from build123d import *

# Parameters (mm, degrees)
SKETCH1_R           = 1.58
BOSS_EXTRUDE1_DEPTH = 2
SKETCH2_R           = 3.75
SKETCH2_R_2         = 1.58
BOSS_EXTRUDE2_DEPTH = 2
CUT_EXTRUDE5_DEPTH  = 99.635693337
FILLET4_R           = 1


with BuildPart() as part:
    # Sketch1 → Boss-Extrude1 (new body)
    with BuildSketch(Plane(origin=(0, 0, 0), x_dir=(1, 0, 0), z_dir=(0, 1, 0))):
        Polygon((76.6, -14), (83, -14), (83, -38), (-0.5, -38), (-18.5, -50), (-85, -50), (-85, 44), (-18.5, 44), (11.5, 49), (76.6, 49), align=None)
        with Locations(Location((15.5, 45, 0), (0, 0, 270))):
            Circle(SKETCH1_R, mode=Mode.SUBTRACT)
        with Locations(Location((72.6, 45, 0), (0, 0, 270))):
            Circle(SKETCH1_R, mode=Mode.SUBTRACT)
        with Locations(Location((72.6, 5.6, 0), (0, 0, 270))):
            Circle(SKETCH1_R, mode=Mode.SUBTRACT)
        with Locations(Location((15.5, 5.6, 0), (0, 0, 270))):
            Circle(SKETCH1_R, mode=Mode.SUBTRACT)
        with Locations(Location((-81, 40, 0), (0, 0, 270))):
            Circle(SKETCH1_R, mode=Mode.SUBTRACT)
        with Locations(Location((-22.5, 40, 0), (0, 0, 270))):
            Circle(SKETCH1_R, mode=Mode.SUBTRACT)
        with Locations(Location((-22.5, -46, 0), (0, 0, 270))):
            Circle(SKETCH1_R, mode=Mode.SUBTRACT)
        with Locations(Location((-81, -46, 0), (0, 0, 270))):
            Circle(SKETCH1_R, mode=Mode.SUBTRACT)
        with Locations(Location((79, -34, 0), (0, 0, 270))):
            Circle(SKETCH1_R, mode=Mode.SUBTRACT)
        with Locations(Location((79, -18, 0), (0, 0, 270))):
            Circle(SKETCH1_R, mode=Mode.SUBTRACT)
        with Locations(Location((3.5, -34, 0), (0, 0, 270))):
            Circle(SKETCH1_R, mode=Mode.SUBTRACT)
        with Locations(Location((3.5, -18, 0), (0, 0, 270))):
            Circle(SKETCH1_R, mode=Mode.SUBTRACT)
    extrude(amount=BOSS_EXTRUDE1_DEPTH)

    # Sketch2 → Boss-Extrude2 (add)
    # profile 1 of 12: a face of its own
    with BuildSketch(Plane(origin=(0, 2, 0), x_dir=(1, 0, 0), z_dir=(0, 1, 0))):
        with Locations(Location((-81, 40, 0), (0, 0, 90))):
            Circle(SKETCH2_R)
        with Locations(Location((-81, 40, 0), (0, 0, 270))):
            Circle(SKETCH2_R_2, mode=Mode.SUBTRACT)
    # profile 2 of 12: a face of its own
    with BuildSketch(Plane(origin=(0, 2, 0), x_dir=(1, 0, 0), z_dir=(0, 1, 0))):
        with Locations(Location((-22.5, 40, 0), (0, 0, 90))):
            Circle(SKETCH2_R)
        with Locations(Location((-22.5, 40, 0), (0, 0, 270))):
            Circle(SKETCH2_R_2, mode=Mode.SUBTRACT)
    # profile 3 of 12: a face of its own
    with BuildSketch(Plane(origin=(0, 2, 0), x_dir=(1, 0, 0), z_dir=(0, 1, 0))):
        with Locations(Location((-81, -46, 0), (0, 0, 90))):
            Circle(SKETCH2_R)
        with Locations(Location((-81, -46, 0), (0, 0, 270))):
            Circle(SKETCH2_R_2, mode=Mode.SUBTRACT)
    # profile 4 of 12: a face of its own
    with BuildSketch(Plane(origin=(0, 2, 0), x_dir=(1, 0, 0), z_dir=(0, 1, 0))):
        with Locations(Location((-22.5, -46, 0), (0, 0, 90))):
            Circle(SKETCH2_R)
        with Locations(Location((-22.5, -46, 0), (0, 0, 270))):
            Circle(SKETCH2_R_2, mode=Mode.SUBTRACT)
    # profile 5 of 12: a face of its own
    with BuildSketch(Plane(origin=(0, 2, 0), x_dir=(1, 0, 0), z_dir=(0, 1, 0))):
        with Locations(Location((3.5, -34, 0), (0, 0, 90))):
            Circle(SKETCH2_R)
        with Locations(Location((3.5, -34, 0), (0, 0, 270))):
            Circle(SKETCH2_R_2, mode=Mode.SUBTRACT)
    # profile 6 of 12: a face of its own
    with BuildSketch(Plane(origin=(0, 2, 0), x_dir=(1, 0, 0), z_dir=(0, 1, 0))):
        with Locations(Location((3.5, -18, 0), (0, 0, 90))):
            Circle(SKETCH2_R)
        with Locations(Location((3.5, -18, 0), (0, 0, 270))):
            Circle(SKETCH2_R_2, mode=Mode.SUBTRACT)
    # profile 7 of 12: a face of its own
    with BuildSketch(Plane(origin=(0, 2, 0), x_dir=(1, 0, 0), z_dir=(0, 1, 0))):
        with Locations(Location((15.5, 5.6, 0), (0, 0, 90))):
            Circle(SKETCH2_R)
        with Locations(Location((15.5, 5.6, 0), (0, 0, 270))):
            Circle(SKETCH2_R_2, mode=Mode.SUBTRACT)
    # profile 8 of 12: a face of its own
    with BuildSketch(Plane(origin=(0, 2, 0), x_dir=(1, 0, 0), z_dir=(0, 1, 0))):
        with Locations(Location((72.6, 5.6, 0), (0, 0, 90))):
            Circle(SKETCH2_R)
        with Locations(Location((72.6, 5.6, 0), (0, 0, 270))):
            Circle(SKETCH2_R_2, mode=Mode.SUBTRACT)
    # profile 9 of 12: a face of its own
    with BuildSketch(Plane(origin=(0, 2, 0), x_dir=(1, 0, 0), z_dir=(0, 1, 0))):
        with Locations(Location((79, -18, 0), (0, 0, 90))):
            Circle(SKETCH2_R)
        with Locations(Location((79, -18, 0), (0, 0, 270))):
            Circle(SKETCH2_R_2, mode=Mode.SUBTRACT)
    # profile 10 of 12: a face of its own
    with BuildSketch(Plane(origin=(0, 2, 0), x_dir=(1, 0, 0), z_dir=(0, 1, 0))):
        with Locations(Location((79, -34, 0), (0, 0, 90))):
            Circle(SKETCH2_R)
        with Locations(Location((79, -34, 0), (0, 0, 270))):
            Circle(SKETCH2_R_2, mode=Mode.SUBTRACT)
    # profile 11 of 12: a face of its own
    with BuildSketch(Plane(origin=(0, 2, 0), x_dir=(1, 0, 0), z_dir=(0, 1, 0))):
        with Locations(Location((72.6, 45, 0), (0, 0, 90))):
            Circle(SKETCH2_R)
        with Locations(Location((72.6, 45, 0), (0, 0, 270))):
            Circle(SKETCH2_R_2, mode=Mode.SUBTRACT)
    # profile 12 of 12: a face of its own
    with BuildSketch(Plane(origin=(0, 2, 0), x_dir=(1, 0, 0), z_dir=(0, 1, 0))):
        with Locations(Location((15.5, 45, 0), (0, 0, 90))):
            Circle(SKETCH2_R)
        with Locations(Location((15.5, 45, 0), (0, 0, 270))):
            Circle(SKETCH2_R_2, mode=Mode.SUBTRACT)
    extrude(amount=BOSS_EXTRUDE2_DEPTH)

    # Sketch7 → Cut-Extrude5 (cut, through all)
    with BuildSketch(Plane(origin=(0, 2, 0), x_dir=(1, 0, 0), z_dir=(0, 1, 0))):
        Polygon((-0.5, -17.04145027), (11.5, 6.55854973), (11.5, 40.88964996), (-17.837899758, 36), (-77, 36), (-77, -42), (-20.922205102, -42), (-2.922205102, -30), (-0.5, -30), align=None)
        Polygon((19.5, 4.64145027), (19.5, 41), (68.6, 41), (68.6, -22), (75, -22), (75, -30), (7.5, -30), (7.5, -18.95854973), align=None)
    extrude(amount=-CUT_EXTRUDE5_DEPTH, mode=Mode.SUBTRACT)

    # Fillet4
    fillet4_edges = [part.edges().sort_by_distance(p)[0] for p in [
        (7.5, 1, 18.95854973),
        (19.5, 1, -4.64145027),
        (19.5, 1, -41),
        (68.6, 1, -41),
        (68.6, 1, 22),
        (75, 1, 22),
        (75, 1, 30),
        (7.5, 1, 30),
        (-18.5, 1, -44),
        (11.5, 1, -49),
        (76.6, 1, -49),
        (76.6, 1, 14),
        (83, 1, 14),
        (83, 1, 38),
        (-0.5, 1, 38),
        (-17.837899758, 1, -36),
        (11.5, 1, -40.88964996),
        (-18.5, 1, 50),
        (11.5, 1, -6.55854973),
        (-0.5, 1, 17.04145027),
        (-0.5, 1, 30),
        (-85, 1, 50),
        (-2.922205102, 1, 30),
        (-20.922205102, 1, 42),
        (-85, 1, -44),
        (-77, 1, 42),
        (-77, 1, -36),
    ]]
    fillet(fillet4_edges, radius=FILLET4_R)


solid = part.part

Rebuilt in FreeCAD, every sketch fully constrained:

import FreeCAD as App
import Part
import Sketcher

V = App.Vector


def edges_at(feature, points):
    """Names of the edges that pass closest to the given points."""
    edges = feature.Shape.Edges
    near = lambda p: min(range(len(edges)), key=lambda i: edges[i].distToShape(Part.Vertex(*p))[0])
    return sorted({f"Edge{near(p) + 1}" for p in points})


def add_polygon(sketch, points):
    """Adds a closed chain of lines whose ends are joined by coincident constraints."""
    first, n = sketch.GeometryCount, len(points)
    for a, b in zip(points, points[1:] + points[:1]):
        sketch.addGeometry(Part.LineSegment(App.Vector(*a, 0), App.Vector(*b, 0)), False)
    for i in range(n):
        sketch.addConstraint(Sketcher.Constraint("Coincident", first + i, 2, first + (i + 1) % n, 1))

doc = App.newDocument("Part")
body = doc.addObject("PartDesign::Body", "Body")

sketch1 = doc.addObject("Sketcher::SketchObject", "Sketch")
body.addObject(sketch1)
sketch1.AttachmentSupport = (doc.XZ_Plane, [""])
sketch1.MapMode = "FlatFace"
add_polygon(sketch1, [(83, 14), (76.6, 14), (76.6, -49), (11.5, -49), (-18.5, -44), (-85, -44), (-85, 50), (-18.5, 50), (-0.5, 38), (83, 38)])
sketch1.addGeometry(Part.Circle(V(79, 34, 0), V(0, 0, 1), 1.6), False)
sketch1.addGeometry(Part.Circle(V(3.5, 34, 0), V(0, 0, 1), 1.6), False)
sketch1.addGeometry(Part.Circle(V(79, 18, 0), V(0, 0, 1), 1.6), False)
sketch1.addGeometry(Part.Circle(V(3.5, 18, 0), V(0, 0, 1), 1.6), False)
sketch1.addGeometry(Part.Circle(V(-22.5, 46, 0), V(0, 0, 1), 1.6), False)
sketch1.addGeometry(Part.Circle(V(-81, 46, 0), V(0, 0, 1), 1.6), False)
sketch1.addGeometry(Part.Circle(V(72.6, -5.6, 0), V(0, 0, 1), 1.6), False)
sketch1.addGeometry(Part.Circle(V(15.5, -5.6, 0), V(0, 0, 1), 1.6), False)
sketch1.addGeometry(Part.Circle(V(72.6, -45, 0), V(0, 0, 1), 1.6), False)
sketch1.addGeometry(Part.Circle(V(15.5, -45, 0), V(0, 0, 1), 1.6), False)
sketch1.addGeometry(Part.Circle(V(-22.5, -40, 0), V(0, 0, 1), 1.6), False)
sketch1.addGeometry(Part.Circle(V(-81, -40, 0), V(0, 0, 1), 1.6), False)
sketch1.addConstraint(Sketcher.Constraint("Horizontal", 0))
sketch1.addConstraint(Sketcher.Constraint("Vertical", 1))
sketch1.addConstraint(Sketcher.Constraint("Horizontal", 2))
sketch1.addConstraint(Sketcher.Constraint("Horizontal", 4))
sketch1.addConstraint(Sketcher.Constraint("Vertical", 5))
sketch1.addConstraint(Sketcher.Constraint("Horizontal", 6))
sketch1.addConstraint(Sketcher.Constraint("Horizontal", 8))
sketch1.addConstraint(Sketcher.Constraint("Vertical", 9))
sketch1.addConstraint(Sketcher.Constraint("Equal", 10, 11))
sketch1.addConstraint(Sketcher.Constraint("Equal", 11, 12))
sketch1.addConstraint(Sketcher.Constraint("Equal", 12, 13))
sketch1.addConstraint(Sketcher.Constraint("Equal", 13, 14))
sketch1.addConstraint(Sketcher.Constraint("Equal", 14, 15))
sketch1.addConstraint(Sketcher.Constraint("Equal", 15, 16))
sketch1.addConstraint(Sketcher.Constraint("Equal", 16, 17))
sketch1.addConstraint(Sketcher.Constraint("Equal", 17, 18))
sketch1.addConstraint(Sketcher.Constraint("Equal", 18, 19))
sketch1.addConstraint(Sketcher.Constraint("Equal", 19, 20))
sketch1.addConstraint(Sketcher.Constraint("Equal", 20, 21))
sketch1.addConstraint(Sketcher.Constraint("Horizontal", 10, 3, 11, 3))
sketch1.addConstraint(Sketcher.Constraint("Horizontal", 12, 3, 13, 3))
sketch1.addConstraint(Sketcher.Constraint("Horizontal", 14, 3, 15, 3))
sketch1.addConstraint(Sketcher.Constraint("Horizontal", 16, 3, 17, 3))
sketch1.addConstraint(Sketcher.Constraint("Horizontal", 18, 3, 19, 3))
sketch1.addConstraint(Sketcher.Constraint("Horizontal", 20, 3, 21, 3))
sketch1.addConstraint(Sketcher.Constraint("Vertical", 10, 3, 12, 3))
sketch1.addConstraint(Sketcher.Constraint("Vertical", 11, 3, 13, 3))
sketch1.addConstraint(Sketcher.Constraint("Vertical", 16, 3, 18, 3))
sketch1.addConstraint(Sketcher.Constraint("Vertical", 17, 3, 19, 3))
sketch1.addConstraint(Sketcher.Constraint("Vertical", 14, 3, 20, 3))
sketch1.addConstraint(Sketcher.Constraint("Vertical", 15, 3, 21, 3))
sketch1.addConstraint(Sketcher.Constraint("Vertical", 3, 2, 6, 2))
sketch1.addConstraint(Sketcher.Constraint("Diameter", 10, 3.16))
sketch1.addConstraint(Sketcher.Constraint("DistanceY", 1, 2, 1, 1, 63.0))
sketch1.addConstraint(Sketcher.Constraint("DistanceY", 5, 1, 5, 2, 94.0))
sketch1.addConstraint(Sketcher.Constraint("DistanceY", 9, 2, 9, 1, 24.0))
sketch1.addConstraint(Sketcher.Constraint("DistanceX", 0, 2, 0, 1, 6.4))
sketch1.addConstraint(Sketcher.Constraint("DistanceX", 2, 2, 2, 1, 65.1))
sketch1.addConstraint(Sketcher.Constraint("DistanceX", 4, 2, 4, 1, 66.5))
sketch1.addConstraint(Sketcher.Constraint("DistanceX", 8, 1, 8, 2, 83.5))
sketch1.addConstraint(Sketcher.Constraint("DistanceX", -1, 1, 10, 3, 79.0))
sketch1.addConstraint(Sketcher.Constraint("DistanceY", -1, 1, 10, 3, 34.0))
sketch1.addConstraint(Sketcher.Constraint("DistanceY", -1, 1, 12, 3, 18.0))
sketch1.addConstraint(Sketcher.Constraint("DistanceY", -1, 1, 14, 3, 46.0))
sketch1.addConstraint(Sketcher.Constraint("DistanceX", 15, 3, -1, 1, 81.0))
sketch1.addConstraint(Sketcher.Constraint("DistanceY", 18, 3, -1, 1, 45.0))
sketch1.addConstraint(Sketcher.Constraint("DistanceY", 20, 3, -1, 1, 40.0))
sketch1.addConstraint(Sketcher.Constraint("DistanceY", -1, 1, 0, 2, 14.0))
sketch1.addConstraint(Sketcher.Constraint("DistanceY", 3, 2, -1, 1, 44.0))
sketch1.addConstraint(Sketcher.Constraint("DistanceX", 4, 2, -1, 1, 85.0))
sketch1.addConstraint(Sketcher.Constraint("DistanceX", -1, 1, 8, 2, 83.0))
sketch1.addConstraint(Sketcher.Constraint("DistanceX", 14, 3, 11, 3, 26.0))
sketch1.addConstraint(Sketcher.Constraint("DistanceX", 13, 3, 17, 3, 12.0))
sketch1.addConstraint(Sketcher.Constraint("DistanceX", 16, 3, 0, 2, 4.0))
sketch1.addConstraint(Sketcher.Constraint("DistanceX", 2, 2, 19, 3, 4.0))
sketch1.addConstraint(Sketcher.Constraint("DistanceY", 16, 3, -1, 1, 5.6))
pad1 = doc.addObject("PartDesign::Pad", "Pad")
body.addObject(pad1)
pad1.Profile = sketch1
pad1.Length = 2
pad1.Reversed = True

sketch2 = doc.addObject("Sketcher::SketchObject", "Sketch001")
body.addObject(sketch2)
sketch2.AttachmentSupport = (doc.XZ_Plane, [""])
sketch2.MapMode = "FlatFace"
sketch2.AttachmentOffset = App.Placement(V(0, 0, -2), App.Rotation())
sketch2.addGeometry(Part.Circle(V(-81, -40, 0), V(0, 0, 1), 3.8), False)
sketch2.addGeometry(Part.Circle(V(-81, -40, 0), V(0, 0, 1), 1.6), False)
sketch2.addGeometry(Part.Circle(V(-22.5, -40, 0), V(0, 0, 1), 3.8), False)
sketch2.addGeometry(Part.Circle(V(-22.5, -40, 0), V(0, 0, 1), 1.6), False)
sketch2.addGeometry(Part.Circle(V(-81, 46, 0), V(0, 0, 1), 3.8), False)
sketch2.addGeometry(Part.Circle(V(-81, 46, 0), V(0, 0, 1), 1.6), False)
sketch2.addGeometry(Part.Circle(V(-22.5, 46, 0), V(0, 0, 1), 3.8), False)
sketch2.addGeometry(Part.Circle(V(-22.5, 46, 0), V(0, 0, 1), 1.6), False)
sketch2.addGeometry(Part.Circle(V(3.5, 34, 0), V(0, 0, 1), 3.8), False)
sketch2.addGeometry(Part.Circle(V(3.5, 34, 0), V(0, 0, 1), 1.6), False)
sketch2.addGeometry(Part.Circle(V(3.5, 18, 0), V(0, 0, 1), 3.8), False)
sketch2.addGeometry(Part.Circle(V(3.5, 18, 0), V(0, 0, 1), 1.6), False)
sketch2.addGeometry(Part.Circle(V(15.5, -5.6, 0), V(0, 0, 1), 3.8), False)
sketch2.addGeometry(Part.Circle(V(15.5, -5.6, 0), V(0, 0, 1), 1.6), False)
sketch2.addGeometry(Part.Circle(V(72.6, -5.6, 0), V(0, 0, 1), 3.8), False)
sketch2.addGeometry(Part.Circle(V(72.6, -5.6, 0), V(0, 0, 1), 1.6), False)
sketch2.addGeometry(Part.Circle(V(79, 18, 0), V(0, 0, 1), 3.8), False)
sketch2.addGeometry(Part.Circle(V(79, 18, 0), V(0, 0, 1), 1.6), False)
sketch2.addGeometry(Part.Circle(V(79, 34, 0), V(0, 0, 1), 3.8), False)
sketch2.addGeometry(Part.Circle(V(79, 34, 0), V(0, 0, 1), 1.6), False)
sketch2.addGeometry(Part.Circle(V(72.6, -45, 0), V(0, 0, 1), 3.8), False)
sketch2.addGeometry(Part.Circle(V(72.6, -45, 0), V(0, 0, 1), 1.6), False)
sketch2.addGeometry(Part.Circle(V(15.5, -45, 0), V(0, 0, 1), 3.8), False)
sketch2.addGeometry(Part.Circle(V(15.5, -45, 0), V(0, 0, 1), 1.6), False)
sketch2.addConstraint(Sketcher.Constraint("Coincident", 1, 3, 0, 3))
sketch2.addConstraint(Sketcher.Constraint("Coincident", 3, 3, 2, 3))
sketch2.addConstraint(Sketcher.Constraint("Coincident", 5, 3, 4, 3))
sketch2.addConstraint(Sketcher.Constraint("Coincident", 7, 3, 6, 3))
sketch2.addConstraint(Sketcher.Constraint("Coincident", 9, 3, 8, 3))
sketch2.addConstraint(Sketcher.Constraint("Coincident", 11, 3, 10, 3))
sketch2.addConstraint(Sketcher.Constraint("Coincident", 13, 3, 12, 3))
sketch2.addConstraint(Sketcher.Constraint("Coincident", 15, 3, 14, 3))
sketch2.addConstraint(Sketcher.Constraint("Coincident", 17, 3, 16, 3))
sketch2.addConstraint(Sketcher.Constraint("Coincident", 19, 3, 18, 3))
sketch2.addConstraint(Sketcher.Constraint("Coincident", 21, 3, 20, 3))
sketch2.addConstraint(Sketcher.Constraint("Coincident", 23, 3, 22, 3))
sketch2.addConstraint(Sketcher.Constraint("Equal", 0, 2))
sketch2.addConstraint(Sketcher.Constraint("Equal", 1, 3))
sketch2.addConstraint(Sketcher.Constraint("Equal", 2, 4))
sketch2.addConstraint(Sketcher.Constraint("Equal", 3, 5))
sketch2.addConstraint(Sketcher.Constraint("Equal", 4, 6))
sketch2.addConstraint(Sketcher.Constraint("Equal", 5, 7))
sketch2.addConstraint(Sketcher.Constraint("Equal", 6, 8))
sketch2.addConstraint(Sketcher.Constraint("Equal", 7, 9))
sketch2.addConstraint(Sketcher.Constraint("Equal", 8, 10))
sketch2.addConstraint(Sketcher.Constraint("Equal", 9, 11))
sketch2.addConstraint(Sketcher.Constraint("Equal", 10, 12))
sketch2.addConstraint(Sketcher.Constraint("Equal", 11, 13))
sketch2.addConstraint(Sketcher.Constraint("Equal", 12, 14))
sketch2.addConstraint(Sketcher.Constraint("Equal", 13, 15))
sketch2.addConstraint(Sketcher.Constraint("Equal", 14, 16))
sketch2.addConstraint(Sketcher.Constraint("Equal", 15, 17))
sketch2.addConstraint(Sketcher.Constraint("Equal", 16, 18))
sketch2.addConstraint(Sketcher.Constraint("Equal", 17, 19))
sketch2.addConstraint(Sketcher.Constraint("Equal", 18, 20))
sketch2.addConstraint(Sketcher.Constraint("Equal", 19, 21))
sketch2.addConstraint(Sketcher.Constraint("Equal", 20, 22))
sketch2.addConstraint(Sketcher.Constraint("Equal", 21, 23))
sketch2.addConstraint(Sketcher.Constraint("Horizontal", 1, 3, 2, 3))
sketch2.addConstraint(Sketcher.Constraint("Horizontal", 5, 3, 6, 3))
sketch2.addConstraint(Sketcher.Constraint("Horizontal", 13, 3, 14, 3))
sketch2.addConstraint(Sketcher.Constraint("Horizontal", 11, 3, 16, 3))
sketch2.addConstraint(Sketcher.Constraint("Horizontal", 9, 3, 18, 3))
sketch2.addConstraint(Sketcher.Constraint("Horizontal", 21, 3, 22, 3))
sketch2.addConstraint(Sketcher.Constraint("Vertical", 1, 3, 4, 3))
sketch2.addConstraint(Sketcher.Constraint("Vertical", 3, 3, 6, 3))
sketch2.addConstraint(Sketcher.Constraint("Vertical", 9, 3, 10, 3))
sketch2.addConstraint(Sketcher.Constraint("Vertical", 17, 3, 18, 3))
sketch2.addConstraint(Sketcher.Constraint("Vertical", 15, 3, 20, 3))
sketch2.addConstraint(Sketcher.Constraint("Vertical", 13, 3, 22, 3))
sketch2.addConstraint(Sketcher.Constraint("Diameter", 0, 7.5))
sketch2.addConstraint(Sketcher.Constraint("Diameter", 1, 3.16))
sketch2.addConstraint(Sketcher.Constraint("DistanceX", 0, 3, -1, 1, 81.0))
sketch2.addConstraint(Sketcher.Constraint("DistanceY", 0, 3, -1, 1, 40.0))
sketch2.addConstraint(Sketcher.Constraint("DistanceY", -1, 1, 4, 3, 46.0))
sketch2.addConstraint(Sketcher.Constraint("DistanceY", -1, 1, 8, 3, 34.0))
sketch2.addConstraint(Sketcher.Constraint("DistanceY", -1, 1, 10, 3, 18.0))
sketch2.addConstraint(Sketcher.Constraint("DistanceX", -1, 1, 16, 3, 79.0))
sketch2.addConstraint(Sketcher.Constraint("DistanceY", 20, 3, -1, 1, 45.0))
sketch2.addConstraint(Sketcher.Constraint("DistanceX", 6, 3, 8, 3, 26.0))
sketch2.addConstraint(Sketcher.Constraint("DistanceX", 10, 3, 12, 3, 12.0))
sketch2.addConstraint(Sketcher.Constraint("DistanceX", 2, 3, -1, 1, 22.5))
sketch2.addConstraint(Sketcher.Constraint("DistanceY", 12, 3, -1, 1, 5.6))
sketch2.addConstraint(Sketcher.Constraint("DistanceX", -1, 1, 14, 3, 72.6))
pad2 = doc.addObject("PartDesign::Pad", "Pad001")
body.addObject(pad2)
pad2.Profile = sketch2
pad2.Length = 2
pad2.Reversed = True

sketch3 = doc.addObject("Sketcher::SketchObject", "Sketch002")
body.addObject(sketch3)
sketch3.AttachmentSupport = (doc.XZ_Plane, [""])
sketch3.MapMode = "FlatFace"
sketch3.AttachmentOffset = App.Placement(V(0, 0, -2), App.Rotation())
add_polygon(sketch3, [(-0.5, 17), (11.5, -6.6), (11.5, -40.9), (-17.8, -36), (-77, -36), (-77, 42), (-20.9, 42), (-2.9, 30), (-0.5, 30)])
add_polygon(sketch3, [(19.5, -41), (19.5, -4.6), (7.5, 19), (7.5, 30), (75, 30), (75, 22), (68.6, 22), (68.6, -41)])
sketch3.addConstraint(Sketcher.Constraint("Vertical", 1))
sketch3.addConstraint(Sketcher.Constraint("Horizontal", 3))
sketch3.addConstraint(Sketcher.Constraint("Vertical", 4))
sketch3.addConstraint(Sketcher.Constraint("Horizontal", 5))
sketch3.addConstraint(Sketcher.Constraint("Horizontal", 7))
sketch3.addConstraint(Sketcher.Constraint("Vertical", 8))
sketch3.addConstraint(Sketcher.Constraint("Vertical", 9))
sketch3.addConstraint(Sketcher.Constraint("Vertical", 11))
sketch3.addConstraint(Sketcher.Constraint("Horizontal", 12))
sketch3.addConstraint(Sketcher.Constraint("Vertical", 13))
sketch3.addConstraint(Sketcher.Constraint("Horizontal", 14))
sketch3.addConstraint(Sketcher.Constraint("Vertical", 15))
sketch3.addConstraint(Sketcher.Constraint("Horizontal", 16))
sketch3.addConstraint(Sketcher.Constraint("Parallel", 0, 10))
sketch3.addConstraint(Sketcher.Constraint("Horizontal", 7, 2, 11, 2))
sketch3.addConstraint(Sketcher.Constraint("Equal", 0, 10))
sketch3.addConstraint(Sketcher.Constraint("DistanceY", 4, 1, 4, 2, 78.0))
sketch3.addConstraint(Sketcher.Constraint("DistanceY", 13, 2, 13, 1, 8.0))
sketch3.addConstraint(Sketcher.Constraint("DistanceY", 15, 2, 15, 1, 63.0))
sketch3.addConstraint(Sketcher.Constraint("DistanceX", 12, 1, 12, 2, 67.5))
sketch3.addConstraint(Sketcher.Constraint("DistanceX", 14, 2, 14, 1, 6.4))
sketch3.addConstraint(Sketcher.Constraint("DistanceX", 16, 2, 16, 1, 49.1))
sketch3.addConstraint(Sketcher.Constraint("DistanceY", 2, 2, -1, 1, 36.0))
sketch3.addConstraint(Sketcher.Constraint("DistanceX", 3, 2, -1, 1, 77.0))
sketch3.addConstraint(Sketcher.Constraint("DistanceY", -1, 1, 6, 2, 30.0))
sketch3.addConstraint(Sketcher.Constraint("DistanceX", -1, 1, 12, 2, 75.0))
sketch3.addConstraint(Sketcher.Constraint("DistanceX", 5, 2, 6, 2, 18.0))
sketch3.addConstraint(Sketcher.Constraint("DistanceX", 0, 2, 9, 2, 8.0))
sketch3.addConstraint(Sketcher.Constraint("DistanceY", 0, 2, 8, 2, 23.6))
sketch3.addConstraint(Sketcher.Constraint("DistanceX", 3, 2, 3, 1, 59.1621))
sketch3.addConstraint(Sketcher.Constraint("DistanceY", 1, 2, 1, 1, 34.3311))
sketch3.addConstraint(Sketcher.Constraint("DistanceY", 8, 2, 8, 1, 12.95855))
sketch3.addConstraint(Sketcher.Constraint("DistanceY", 9, 1, 9, 2, 36.35855))
sketch3.addConstraint(Sketcher.Constraint("DistanceX", 5, 1, 5, 2, 56.077795))
pocket1 = doc.addObject("PartDesign::Pocket", "Pocket")
body.addObject(pocket1)
pocket1.Profile = sketch3
pocket1.Type = "ThroughAll"
pocket1.Reversed = True
doc.recompute()

fillet = doc.addObject("PartDesign::Fillet", "Fillet")
body.addObject(fillet)
fillet.Base = (pocket1, edges_at(pocket1, [
    (7.5, 1, 18.959),
    (19.5, 1, -4.641),
    (19.5, 1, -41),
    (68.6, 1, -41),
    (68.6, 1, 22),
    (75, 1, 22),
    (75, 1, 30),
    (7.5, 1, 30),
    (-18.5, 1, -44),
    (11.5, 1, -49),
    (76.6, 1, -49),
    (76.6, 1, 14),
    (83, 1, 14),
    (83, 1, 38),
    (-0.5, 1, 38),
    (-17.838, 1, -36),
    (11.5, 1, -40.89),
    (-18.5, 1, 50),
    (11.5, 1, -6.559),
    (-0.5, 1, 17.041),
    (-0.5, 1, 30),
    (-85, 1, 50),
    (-2.922, 1, 30),
    (-20.922, 1, 42),
    (-85, 1, -44),
    (-77, 1, 42),
    (-77, 1, -36),
]))
fillet.Radius = 1

doc.recompute()
